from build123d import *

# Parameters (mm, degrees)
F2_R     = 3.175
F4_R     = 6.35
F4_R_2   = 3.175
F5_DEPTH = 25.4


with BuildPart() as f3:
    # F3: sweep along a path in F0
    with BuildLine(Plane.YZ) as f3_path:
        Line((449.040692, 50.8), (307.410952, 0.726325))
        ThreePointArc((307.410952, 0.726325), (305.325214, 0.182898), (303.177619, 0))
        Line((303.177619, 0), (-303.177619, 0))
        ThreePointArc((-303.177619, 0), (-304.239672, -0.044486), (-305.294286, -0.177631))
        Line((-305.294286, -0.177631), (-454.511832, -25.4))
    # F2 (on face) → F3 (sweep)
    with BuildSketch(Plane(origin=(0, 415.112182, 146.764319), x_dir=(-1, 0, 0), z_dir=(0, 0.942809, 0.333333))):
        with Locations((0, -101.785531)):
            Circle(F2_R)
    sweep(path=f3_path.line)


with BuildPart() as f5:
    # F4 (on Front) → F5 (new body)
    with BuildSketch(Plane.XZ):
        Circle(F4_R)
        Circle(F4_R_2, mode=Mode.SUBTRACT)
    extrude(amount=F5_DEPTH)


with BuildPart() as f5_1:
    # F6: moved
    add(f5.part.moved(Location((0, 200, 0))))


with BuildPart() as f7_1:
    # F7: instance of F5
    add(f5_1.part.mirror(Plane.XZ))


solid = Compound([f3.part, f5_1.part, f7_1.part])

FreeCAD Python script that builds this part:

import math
import FreeCAD as App
import Part
import Sketcher
from FreeCAD import Vector
Q = App.Units.Quantity

doc = App.newDocument("Part")
body = doc.addObject("PartDesign::Body", "Body")

# Sketch on an angled plane
sketch1 = body.newObject("Sketcher::SketchObject", "Sketch")
sketch1.Placement = App.Placement(Vector(0, 415.112182, 146.764319), App.Rotation(Vector(-1, 0, 0), Vector(0, -0.33333305, 0.942809142), Vector(0, 0.942809142, 0.33333305), "ZXY"))
sketch1.addGeometry(Part.Circle(Vector(0, -101.8, 0), Vector(0, 0, 1), 3.2), False)
sketch1.addConstraint(Sketcher.Constraint("PointOnObject", 0, 3, -2))
sketch1.addConstraint(Sketcher.Constraint("Diameter", 0, Q("0.25 in")))
sketch1.addConstraint(Sketcher.Constraint("DistanceY", 0, 3, -1, 1, Q("101.785531 mm")))

# Sketch on YZ plane
sketch2 = body.newObject("Sketcher::SketchObject", "Sketch001")
sketch2.AttachmentSupport = (doc.getObject("YZ_Plane"), [""])
sketch2.MapMode = "FlatFace"
sketch2.addGeometry(Part.LineSegment(Vector(449.040692, 50.8, 0), Vector(307.410952, 0.726325, 0)), False)
sketch2.addGeometry(Part.ArcOfCircle(Part.Circle(Vector(303.177622, 12.699984, 0), Vector(0, 0, 1), 12.699984), math.radians(-90.000013), math.radians(-70.528769)), False)
sketch2.addGeometry(Part.LineSegment(Vector(303.177619, 0, 0), Vector(-303.177619, 0, 0)), False)
sketch2.addGeometry(Part.ArcOfCircle(Part.Circle(Vector(-303.17761, -12.700124, 0), Vector(0, 0, 1), 12.700124), math.radians(90.000042), math.radians(99.594018)), False)
sketch2.addGeometry(Part.LineSegment(Vector(-305.294286, -0.177631, 0), Vector(-454.511832, -25.4, 0)), False)
sketch2.addConstraint(Sketcher.Constraint("Coincident", 0, 2, 1, 2))
sketch2.addConstraint(Sketcher.Constraint("Coincident", 1, 1, 2, 1))
sketch2.addConstraint(Sketcher.Constraint("Coincident", 2, 2, 3, 1))
sketch2.addConstraint(Sketcher.Constraint("Coincident", 3, 2, 4, 1))
sketch2.addConstraint(Sketcher.Constraint("Horizontal", 2))
sketch2.addConstraint(Sketcher.Constraint("PointOnObject", 1, 1, -1))
sketch2.addConstraint(Sketcher.Constraint("DistanceY", -1, 1, 0, 1, Q("2 in")))
sketch2.addConstraint(Sketcher.Constraint("DistanceY", 4, 2, -1, 1, Q("1 in")))
sketch2.addConstraint(Sketcher.Constraint("Radius", 1, Q("12.699984 mm")))
sketch2.addConstraint(Sketcher.Constraint("Radius", 3, Q("12.700124 mm")))
sketch2.addConstraint(Sketcher.Constraint("DistanceX", 2, 2, 2, 1, Q("606.355238 mm")))
sketch2.addConstraint(Sketcher.Constraint("DistanceX", 3, 3, 0, 1, Q("752.218302 mm")))
sketch2.addConstraint(Sketcher.Constraint("DistanceX", -1, 1, 1, 3, Q("303.177622 mm")))
sketch2.addConstraint(Sketcher.Constraint("DistanceX", 3, 3, -1, 1, Q("303.17761 mm")))
sketch2.addConstraint(Sketcher.Constraint("DistanceX", -1, 1, 0, 2, Q("307.410952 mm")))
sketch2.addConstraint(Sketcher.Constraint("DistanceX", -1, 1, 1, 1, Q("303.177619 mm")))
sketch2.addConstraint(Sketcher.Constraint("DistanceY", 3, 2, -1, 1, Q("0.177631 mm")))
sketch2.addConstraint(Sketcher.Constraint("DistanceX", 4, 2, 1, 1, Q("757.689451 mm")))
doc.recompute()

additivepipe = body.newObject("PartDesign::AdditivePipe", "AdditivePipe")
additivepipe.Profile = sketch1
additivepipe.Spine = (sketch2, ["Edge1", "Edge2", "Edge3", "Edge4", "Edge5"])
body2 = doc.addObject("PartDesign::Body", "Body001")

# Sketch on XZ plane
sketch3 = body2.newObject("Sketcher::SketchObject", "Sketch002")
sketch3.AttachmentSupport = (doc.getObject("XZ_Plane001"), [""])
sketch3.MapMode = "FlatFace"
sketch3.addGeometry(Part.Circle(Vector(0, 0, 0), Vector(0, 0, 1), 6.3), False)
sketch3.addGeometry(Part.Circle(Vector(0, 0, 0), Vector(0, 0, 1), 3.2), False)
sketch3.addConstraint(Sketcher.Constraint("Coincident", 0, 3, -1, 1))
sketch3.addConstraint(Sketcher.Constraint("Coincident", 1, 3, -1, 1))
sketch3.addConstraint(Sketcher.Constraint("Diameter", 0, Q("0.5 in")))
sketch3.addConstraint(Sketcher.Constraint("Diameter", 1, Q("0.25 in")))
pad1 = body2.newObject("PartDesign::Pad", "Pad")
pad1.Profile = sketch3
pad1.Length = Q("1 in")
body3 = doc.addObject("PartDesign::Body", "Body002")
doc.recompute()

body2.Placement = App.Placement(Vector(0, 200, 0), App.Rotation(Vector(0, 0, 1), 0))
boolean = body3.newObject("PartDesign::Boolean", "Boolean")
boolean.Type = "Fuse"
boolean.addObjects([body2])
body4 = doc.addObject("PartDesign::Body", "Body003")
doc.recompute()

mirroring = doc.addObject("Part::Mirroring", "Mirroring")
mirroring.Source = body3
mirroring.Base = Vector(0, 0, 0)
mirroring.Normal = Vector(0, -1, 0)
body4.BaseFeature = mirroring
doc.recompute()
mirroring.Visibility = False

doc.recompute()
